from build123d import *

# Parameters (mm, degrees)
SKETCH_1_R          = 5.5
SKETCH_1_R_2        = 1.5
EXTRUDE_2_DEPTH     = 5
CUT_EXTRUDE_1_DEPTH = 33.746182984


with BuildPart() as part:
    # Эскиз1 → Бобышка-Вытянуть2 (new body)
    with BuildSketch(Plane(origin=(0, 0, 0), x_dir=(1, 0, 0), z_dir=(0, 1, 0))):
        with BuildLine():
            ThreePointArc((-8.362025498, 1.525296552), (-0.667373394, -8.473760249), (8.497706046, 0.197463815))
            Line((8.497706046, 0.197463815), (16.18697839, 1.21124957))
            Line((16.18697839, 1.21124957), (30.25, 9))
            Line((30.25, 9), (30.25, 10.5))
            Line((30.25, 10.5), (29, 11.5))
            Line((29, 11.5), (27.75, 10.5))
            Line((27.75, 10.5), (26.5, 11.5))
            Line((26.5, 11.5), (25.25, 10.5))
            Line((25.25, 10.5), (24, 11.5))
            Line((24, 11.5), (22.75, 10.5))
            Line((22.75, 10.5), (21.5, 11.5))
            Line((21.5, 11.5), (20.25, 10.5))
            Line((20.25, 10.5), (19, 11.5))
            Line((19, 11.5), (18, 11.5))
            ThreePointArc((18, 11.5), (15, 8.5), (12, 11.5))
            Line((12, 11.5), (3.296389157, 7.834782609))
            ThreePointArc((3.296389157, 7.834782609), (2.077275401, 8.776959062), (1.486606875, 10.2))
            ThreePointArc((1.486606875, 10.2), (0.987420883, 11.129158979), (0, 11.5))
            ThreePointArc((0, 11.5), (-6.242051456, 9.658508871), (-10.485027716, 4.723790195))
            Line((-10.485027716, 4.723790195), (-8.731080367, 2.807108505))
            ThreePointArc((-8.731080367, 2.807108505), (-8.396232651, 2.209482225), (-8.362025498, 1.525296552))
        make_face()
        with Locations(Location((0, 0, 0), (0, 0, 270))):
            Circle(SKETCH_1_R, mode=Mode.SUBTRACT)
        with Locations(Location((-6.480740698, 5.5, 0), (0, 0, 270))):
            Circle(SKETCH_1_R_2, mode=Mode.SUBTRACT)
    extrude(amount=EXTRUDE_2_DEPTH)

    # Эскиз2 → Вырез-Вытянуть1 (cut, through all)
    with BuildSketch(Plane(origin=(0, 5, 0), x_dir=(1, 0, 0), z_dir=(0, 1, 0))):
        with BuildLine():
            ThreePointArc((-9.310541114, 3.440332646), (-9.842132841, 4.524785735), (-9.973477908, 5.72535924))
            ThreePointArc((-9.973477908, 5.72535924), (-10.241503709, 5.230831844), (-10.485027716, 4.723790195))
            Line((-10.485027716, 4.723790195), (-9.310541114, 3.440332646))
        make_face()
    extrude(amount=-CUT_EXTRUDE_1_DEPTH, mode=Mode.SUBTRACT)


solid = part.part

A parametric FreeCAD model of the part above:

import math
import FreeCAD as App
import Part
import Sketcher

V = App.Vector
Q = App.Units.Quantity

doc = App.newDocument("Part")
body = doc.addObject("PartDesign::Body", "Body")

# Sketch on XZ plane
sketch1 = body.newObject("Sketcher::SketchObject", "Sketch")
sketch1.AttachmentSupport = (doc.getObject("XZ_Plane"), [""])
sketch1.MapMode = "FlatFace"
sketch1.addGeometry([
    Part.ArcOfCircle(Part.Circle(V(0, 0, 0), V(0, 0, 1), 8.5), math.radians(-1), math.radians(190)),  # 0
    Part.LineSegment(V(8.5, -0.2, 0), V(16.2, -1.2, 0)),  # 1
    Part.LineSegment(V(16.2, -1.2, 0), V(30.2, -9, 0)),  # 2
    Part.LineSegment(V(30.2, -9, 0), V(30.2, -10.5, 0)),  # 3
    Part.LineSegment(V(30.2, -10.5, 0), V(29, -11.5, 0)),  # 4
    Part.LineSegment(V(29, -11.5, 0), V(27.8, -10.5, 0)),  # 5
    Part.LineSegment(V(27.8, -10.5, 0), V(26.5, -11.5, 0)),  # 6
    Part.LineSegment(V(26.5, -11.5, 0), V(25.2, -10.5, 0)),  # 7
    Part.LineSegment(V(25.2, -10.5, 0), V(24, -11.5, 0)),  # 8
    Part.LineSegment(V(24, -11.5, 0), V(22.8, -10.5, 0)),  # 9
    Part.LineSegment(V(22.8, -10.5, 0), V(21.5, -11.5, 0)),  # 10
    Part.LineSegment(V(21.5, -11.5, 0), V(20.2, -10.5, 0)),  # 11
    Part.LineSegment(V(20.2, -10.5, 0), V(19, -11.5, 0)),  # 12
    Part.LineSegment(V(19, -11.5, 0), V(18, -11.5, 0)),  # 13
    Part.ArcOfCircle(Part.Circle(V(15, -11.5, 0), V(0, 0, 1), 3), math.radians(0), math.radians(180)),  # 14
    Part.LineSegment(V(12, -11.5, 0), V(3.3, -7.8, 0)),  # 15
    Part.ArcOfCircle(Part.Circle(V(4.5, -10.6, 0), V(0, 0, 1), 3), math.radians(113), math.radians(172)),  # 16
    Part.ArcOfCircle(Part.Circle(V(0, -10, 0), V(0, 0, 1), 1.5), math.radians(-90), math.radians(-8)),  # 17
    Part.ArcOfCircle(Part.Circle(V(0, 0, 0), V(0, 0, 1), 11.5), math.radians(-156), math.radians(-90)),  # 18
    Part.LineSegment(V(-10.5, -4.7, 0), V(-8.7, -2.8, 0)),  # 19
    Part.ArcOfCircle(Part.Circle(V(-9.8, -1.8, 0), V(0, 0, 1), 1.5), math.radians(-42), math.radians(10)),  # 20
    Part.Circle(V(0, 0, 0), V(0, 0, 1), 5.5),  # 21
    Part.Circle(V(-6.5, -5.5, 0), V(0, 0, 1), 1.5),  # 22
], False)
sketch1.addConstraint([
    Sketcher.Constraint("Coincident", 0, 1, 1, 1),
    Sketcher.Constraint("Coincident", 1, 2, 2, 1),
    Sketcher.Constraint("Coincident", 2, 2, 3, 1),
    Sketcher.Constraint("Coincident", 3, 2, 4, 1),
    Sketcher.Constraint("Coincident", 4, 2, 5, 1),
    Sketcher.Constraint("Coincident", 5, 2, 6, 1),
    Sketcher.Constraint("Coincident", 6, 2, 7, 1),
    Sketcher.Constraint("Coincident", 7, 2, 8, 1),
    Sketcher.Constraint("Coincident", 8, 2, 9, 1),
    Sketcher.Constraint("Coincident", 9, 2, 10, 1),
    Sketcher.Constraint("Coincident", 10, 2, 11, 1),
    Sketcher.Constraint("Coincident", 11, 2, 12, 1),
    Sketcher.Constraint("Coincident", 12, 2, 13, 1),
    Sketcher.Constraint("Coincident", 13, 2, 14, 1),
    Sketcher.Constraint("Coincident", 14, 2, 15, 1),
    Sketcher.Constraint("Coincident", 15, 2, 16, 1),
    Sketcher.Constraint("Tangent", 16, 2, 17, 2),
    Sketcher.Constraint("Tangent", 17, 1, 18, 2),
    Sketcher.Constraint("Coincident", 18, 1, 19, 1),
    Sketcher.Constraint("Tangent", 19, 2, 20, 1),
    Sketcher.Constraint("Tangent", 20, 2, 0, 2),
    Sketcher.Constraint("Vertical", 3),
    Sketcher.Constraint("Horizontal", 13),
    Sketcher.Constraint("Coincident", 0, 3, -1, 1),
    Sketcher.Constraint("Coincident", 18, 3, -1, 1),
    Sketcher.Constraint("Coincident", 21, 3, -1, 1),
    Sketcher.Constraint("Equal", 14, 16),
    Sketcher.Constraint("Equal", 17, 20),
    Sketcher.Constraint("Equal", 20, 22),
    Sketcher.Constraint("PointOnObject", 17, 3, -2),
    Sketcher.Constraint("Parallel", 4, 6),
    Sketcher.Constraint("Parallel", 5, 7),
    Sketcher.Constraint("Parallel", 6, 8),
    Sketcher.Constraint("Parallel", 7, 9),
    Sketcher.Constraint("Parallel", 8, 10),
    Sketcher.Constraint("Parallel", 9, 11),
    Sketcher.Constraint("Parallel", 10, 12),
    Sketcher.Constraint("Horizontal", 14, 3, 4, 2),
    Sketcher.Constraint("Horizontal", 3, 2, 5, 2),
    Sketcher.Constraint("Horizontal", 4, 2, 6, 2),
    Sketcher.Constraint("Horizontal", 5, 2, 7, 2),
    Sketcher.Constraint("Horizontal", 6, 2, 8, 2),
    Sketcher.Constraint("Horizontal", 7, 2, 9, 2),
    Sketcher.Constraint("Horizontal", 8, 2, 10, 2),
    Sketcher.Constraint("Horizontal", 9, 2, 11, 2),
    Sketcher.Constraint("Horizontal", 10, 2, 12, 2),
    Sketcher.Constraint("Horizontal", 13, 2, 14, 2),
    Sketcher.Constraint("Horizontal", 14, 2, 17, 1),
    Sketcher.Constraint("Equal", 4, 5),
    Sketcher.Constraint("Diameter", 21, Q("11 mm")),
    Sketcher.Constraint("Diameter", 22, Q("3 mm")),
    Sketcher.Constraint("Radius", 14, Q("3 mm")),
    Sketcher.Constraint("Radius", 0, Q("8.5 mm")),
    Sketcher.Constraint("Radius", 18, Q("11.5 mm")),
    Sketcher.Constraint("DistanceX", 13, 2, 13, 1, Q("1 mm")),
    Sketcher.Constraint("DistanceY", 3, 2, 3, 1, Q("1.5 mm")),
    Sketcher.Constraint("DistanceX", -1, 1, 14, 3, Q("15 mm")),
    Sketcher.Constraint("DistanceY", 2, 2, -1, 1, Q("9 mm")),
    Sketcher.Constraint("DistanceX", -1, 1, 4, 2, Q("29 mm")),
    Sketcher.Constraint("DistanceY", 17, 1, 22, 3, Q("6 mm")),
    Sketcher.Constraint("DistanceY", 16, 3, -1, 1, Q("10.6 mm")),
    Sketcher.Constraint("Distance", 15, Q("9.443869 mm")),
    Sketcher.Constraint("DistanceX", 22, 3, -1, 1, Q("6.480741 mm")),
    Sketcher.Constraint("DistanceX", -1, 1, 1, 2, Q("16.186978 mm")),
    Sketcher.Constraint("DistanceY", 1, 2, -1, 1, Q("1.21125 mm")),
    Sketcher.Constraint("DistanceY", 18, 1, -1, 1, Q("4.72379 mm")),
    Sketcher.Constraint("DistanceX", 19, 2, -1, 1, Q("8.73108 mm")),
    Sketcher.Constraint("Distance", 1, Q("7.755815 mm")),
])
pad1 = body.newObject("PartDesign::Pad", "Pad")
pad1.Profile = sketch1
pad1.Length = 5
pad1.Reversed = True

# Sketch on XZ plane
sketch2 = body.newObject("Sketcher::SketchObject", "Sketch001")
sketch2.AttachmentSupport = (doc.getObject("XZ_Plane"), [""])
sketch2.MapMode = "FlatFace"
sketch2.AttachmentOffset = App.Placement(V(0, 0, -5), App.Rotation())
sketch2.addGeometry([
    Part.ArcOfCircle(Part.Circle(V(-6.5, -5.5, 0), V(0, 0, 1), 3.5), math.radians(144), math.radians(184)),
    Part.ArcOfCircle(Part.Circle(V(0, 0, 0), V(0, 0, 1), 11.5), math.radians(-155.75), math.radians(-150.14)),
    Part.LineSegment(V(-10.5, -4.7, 0), V(-9.3, -3.4, 0)),
], False)
sketch2.addConstraint([
    Sketcher.Constraint("Coincident", 0, 2, 1, 2),
    Sketcher.Constraint("Coincident", 1, 1, 2, 1),
    Sketcher.Constraint("Coincident", 2, 2, 0, 1),
    Sketcher.Constraint("Coincident", 1, 3, -1, 1),
    Sketcher.Constraint("Radius", 0, Q("3.5 mm")),
    Sketcher.Constraint("Radius", 1, Q("11.5 mm")),
    Sketcher.Constraint("DistanceY", 0, 3, -1, 1, Q("5.5 mm")),
    Sketcher.Constraint("DistanceX", 2, 2, 0, 3, Q("2.8298 mm")),
    Sketcher.Constraint("DistanceX", 0, 3, -1, 1, Q("6.480741 mm")),
    Sketcher.Constraint("DistanceY", 1, 1, -1, 1, Q("4.72379 mm")),
])
pocket1 = body.newObject("PartDesign::Pocket", "Pocket")
pocket1.Profile = sketch2
pocket1.Type = "ThroughAll"
pocket1.Reversed = True

doc.recompute()
